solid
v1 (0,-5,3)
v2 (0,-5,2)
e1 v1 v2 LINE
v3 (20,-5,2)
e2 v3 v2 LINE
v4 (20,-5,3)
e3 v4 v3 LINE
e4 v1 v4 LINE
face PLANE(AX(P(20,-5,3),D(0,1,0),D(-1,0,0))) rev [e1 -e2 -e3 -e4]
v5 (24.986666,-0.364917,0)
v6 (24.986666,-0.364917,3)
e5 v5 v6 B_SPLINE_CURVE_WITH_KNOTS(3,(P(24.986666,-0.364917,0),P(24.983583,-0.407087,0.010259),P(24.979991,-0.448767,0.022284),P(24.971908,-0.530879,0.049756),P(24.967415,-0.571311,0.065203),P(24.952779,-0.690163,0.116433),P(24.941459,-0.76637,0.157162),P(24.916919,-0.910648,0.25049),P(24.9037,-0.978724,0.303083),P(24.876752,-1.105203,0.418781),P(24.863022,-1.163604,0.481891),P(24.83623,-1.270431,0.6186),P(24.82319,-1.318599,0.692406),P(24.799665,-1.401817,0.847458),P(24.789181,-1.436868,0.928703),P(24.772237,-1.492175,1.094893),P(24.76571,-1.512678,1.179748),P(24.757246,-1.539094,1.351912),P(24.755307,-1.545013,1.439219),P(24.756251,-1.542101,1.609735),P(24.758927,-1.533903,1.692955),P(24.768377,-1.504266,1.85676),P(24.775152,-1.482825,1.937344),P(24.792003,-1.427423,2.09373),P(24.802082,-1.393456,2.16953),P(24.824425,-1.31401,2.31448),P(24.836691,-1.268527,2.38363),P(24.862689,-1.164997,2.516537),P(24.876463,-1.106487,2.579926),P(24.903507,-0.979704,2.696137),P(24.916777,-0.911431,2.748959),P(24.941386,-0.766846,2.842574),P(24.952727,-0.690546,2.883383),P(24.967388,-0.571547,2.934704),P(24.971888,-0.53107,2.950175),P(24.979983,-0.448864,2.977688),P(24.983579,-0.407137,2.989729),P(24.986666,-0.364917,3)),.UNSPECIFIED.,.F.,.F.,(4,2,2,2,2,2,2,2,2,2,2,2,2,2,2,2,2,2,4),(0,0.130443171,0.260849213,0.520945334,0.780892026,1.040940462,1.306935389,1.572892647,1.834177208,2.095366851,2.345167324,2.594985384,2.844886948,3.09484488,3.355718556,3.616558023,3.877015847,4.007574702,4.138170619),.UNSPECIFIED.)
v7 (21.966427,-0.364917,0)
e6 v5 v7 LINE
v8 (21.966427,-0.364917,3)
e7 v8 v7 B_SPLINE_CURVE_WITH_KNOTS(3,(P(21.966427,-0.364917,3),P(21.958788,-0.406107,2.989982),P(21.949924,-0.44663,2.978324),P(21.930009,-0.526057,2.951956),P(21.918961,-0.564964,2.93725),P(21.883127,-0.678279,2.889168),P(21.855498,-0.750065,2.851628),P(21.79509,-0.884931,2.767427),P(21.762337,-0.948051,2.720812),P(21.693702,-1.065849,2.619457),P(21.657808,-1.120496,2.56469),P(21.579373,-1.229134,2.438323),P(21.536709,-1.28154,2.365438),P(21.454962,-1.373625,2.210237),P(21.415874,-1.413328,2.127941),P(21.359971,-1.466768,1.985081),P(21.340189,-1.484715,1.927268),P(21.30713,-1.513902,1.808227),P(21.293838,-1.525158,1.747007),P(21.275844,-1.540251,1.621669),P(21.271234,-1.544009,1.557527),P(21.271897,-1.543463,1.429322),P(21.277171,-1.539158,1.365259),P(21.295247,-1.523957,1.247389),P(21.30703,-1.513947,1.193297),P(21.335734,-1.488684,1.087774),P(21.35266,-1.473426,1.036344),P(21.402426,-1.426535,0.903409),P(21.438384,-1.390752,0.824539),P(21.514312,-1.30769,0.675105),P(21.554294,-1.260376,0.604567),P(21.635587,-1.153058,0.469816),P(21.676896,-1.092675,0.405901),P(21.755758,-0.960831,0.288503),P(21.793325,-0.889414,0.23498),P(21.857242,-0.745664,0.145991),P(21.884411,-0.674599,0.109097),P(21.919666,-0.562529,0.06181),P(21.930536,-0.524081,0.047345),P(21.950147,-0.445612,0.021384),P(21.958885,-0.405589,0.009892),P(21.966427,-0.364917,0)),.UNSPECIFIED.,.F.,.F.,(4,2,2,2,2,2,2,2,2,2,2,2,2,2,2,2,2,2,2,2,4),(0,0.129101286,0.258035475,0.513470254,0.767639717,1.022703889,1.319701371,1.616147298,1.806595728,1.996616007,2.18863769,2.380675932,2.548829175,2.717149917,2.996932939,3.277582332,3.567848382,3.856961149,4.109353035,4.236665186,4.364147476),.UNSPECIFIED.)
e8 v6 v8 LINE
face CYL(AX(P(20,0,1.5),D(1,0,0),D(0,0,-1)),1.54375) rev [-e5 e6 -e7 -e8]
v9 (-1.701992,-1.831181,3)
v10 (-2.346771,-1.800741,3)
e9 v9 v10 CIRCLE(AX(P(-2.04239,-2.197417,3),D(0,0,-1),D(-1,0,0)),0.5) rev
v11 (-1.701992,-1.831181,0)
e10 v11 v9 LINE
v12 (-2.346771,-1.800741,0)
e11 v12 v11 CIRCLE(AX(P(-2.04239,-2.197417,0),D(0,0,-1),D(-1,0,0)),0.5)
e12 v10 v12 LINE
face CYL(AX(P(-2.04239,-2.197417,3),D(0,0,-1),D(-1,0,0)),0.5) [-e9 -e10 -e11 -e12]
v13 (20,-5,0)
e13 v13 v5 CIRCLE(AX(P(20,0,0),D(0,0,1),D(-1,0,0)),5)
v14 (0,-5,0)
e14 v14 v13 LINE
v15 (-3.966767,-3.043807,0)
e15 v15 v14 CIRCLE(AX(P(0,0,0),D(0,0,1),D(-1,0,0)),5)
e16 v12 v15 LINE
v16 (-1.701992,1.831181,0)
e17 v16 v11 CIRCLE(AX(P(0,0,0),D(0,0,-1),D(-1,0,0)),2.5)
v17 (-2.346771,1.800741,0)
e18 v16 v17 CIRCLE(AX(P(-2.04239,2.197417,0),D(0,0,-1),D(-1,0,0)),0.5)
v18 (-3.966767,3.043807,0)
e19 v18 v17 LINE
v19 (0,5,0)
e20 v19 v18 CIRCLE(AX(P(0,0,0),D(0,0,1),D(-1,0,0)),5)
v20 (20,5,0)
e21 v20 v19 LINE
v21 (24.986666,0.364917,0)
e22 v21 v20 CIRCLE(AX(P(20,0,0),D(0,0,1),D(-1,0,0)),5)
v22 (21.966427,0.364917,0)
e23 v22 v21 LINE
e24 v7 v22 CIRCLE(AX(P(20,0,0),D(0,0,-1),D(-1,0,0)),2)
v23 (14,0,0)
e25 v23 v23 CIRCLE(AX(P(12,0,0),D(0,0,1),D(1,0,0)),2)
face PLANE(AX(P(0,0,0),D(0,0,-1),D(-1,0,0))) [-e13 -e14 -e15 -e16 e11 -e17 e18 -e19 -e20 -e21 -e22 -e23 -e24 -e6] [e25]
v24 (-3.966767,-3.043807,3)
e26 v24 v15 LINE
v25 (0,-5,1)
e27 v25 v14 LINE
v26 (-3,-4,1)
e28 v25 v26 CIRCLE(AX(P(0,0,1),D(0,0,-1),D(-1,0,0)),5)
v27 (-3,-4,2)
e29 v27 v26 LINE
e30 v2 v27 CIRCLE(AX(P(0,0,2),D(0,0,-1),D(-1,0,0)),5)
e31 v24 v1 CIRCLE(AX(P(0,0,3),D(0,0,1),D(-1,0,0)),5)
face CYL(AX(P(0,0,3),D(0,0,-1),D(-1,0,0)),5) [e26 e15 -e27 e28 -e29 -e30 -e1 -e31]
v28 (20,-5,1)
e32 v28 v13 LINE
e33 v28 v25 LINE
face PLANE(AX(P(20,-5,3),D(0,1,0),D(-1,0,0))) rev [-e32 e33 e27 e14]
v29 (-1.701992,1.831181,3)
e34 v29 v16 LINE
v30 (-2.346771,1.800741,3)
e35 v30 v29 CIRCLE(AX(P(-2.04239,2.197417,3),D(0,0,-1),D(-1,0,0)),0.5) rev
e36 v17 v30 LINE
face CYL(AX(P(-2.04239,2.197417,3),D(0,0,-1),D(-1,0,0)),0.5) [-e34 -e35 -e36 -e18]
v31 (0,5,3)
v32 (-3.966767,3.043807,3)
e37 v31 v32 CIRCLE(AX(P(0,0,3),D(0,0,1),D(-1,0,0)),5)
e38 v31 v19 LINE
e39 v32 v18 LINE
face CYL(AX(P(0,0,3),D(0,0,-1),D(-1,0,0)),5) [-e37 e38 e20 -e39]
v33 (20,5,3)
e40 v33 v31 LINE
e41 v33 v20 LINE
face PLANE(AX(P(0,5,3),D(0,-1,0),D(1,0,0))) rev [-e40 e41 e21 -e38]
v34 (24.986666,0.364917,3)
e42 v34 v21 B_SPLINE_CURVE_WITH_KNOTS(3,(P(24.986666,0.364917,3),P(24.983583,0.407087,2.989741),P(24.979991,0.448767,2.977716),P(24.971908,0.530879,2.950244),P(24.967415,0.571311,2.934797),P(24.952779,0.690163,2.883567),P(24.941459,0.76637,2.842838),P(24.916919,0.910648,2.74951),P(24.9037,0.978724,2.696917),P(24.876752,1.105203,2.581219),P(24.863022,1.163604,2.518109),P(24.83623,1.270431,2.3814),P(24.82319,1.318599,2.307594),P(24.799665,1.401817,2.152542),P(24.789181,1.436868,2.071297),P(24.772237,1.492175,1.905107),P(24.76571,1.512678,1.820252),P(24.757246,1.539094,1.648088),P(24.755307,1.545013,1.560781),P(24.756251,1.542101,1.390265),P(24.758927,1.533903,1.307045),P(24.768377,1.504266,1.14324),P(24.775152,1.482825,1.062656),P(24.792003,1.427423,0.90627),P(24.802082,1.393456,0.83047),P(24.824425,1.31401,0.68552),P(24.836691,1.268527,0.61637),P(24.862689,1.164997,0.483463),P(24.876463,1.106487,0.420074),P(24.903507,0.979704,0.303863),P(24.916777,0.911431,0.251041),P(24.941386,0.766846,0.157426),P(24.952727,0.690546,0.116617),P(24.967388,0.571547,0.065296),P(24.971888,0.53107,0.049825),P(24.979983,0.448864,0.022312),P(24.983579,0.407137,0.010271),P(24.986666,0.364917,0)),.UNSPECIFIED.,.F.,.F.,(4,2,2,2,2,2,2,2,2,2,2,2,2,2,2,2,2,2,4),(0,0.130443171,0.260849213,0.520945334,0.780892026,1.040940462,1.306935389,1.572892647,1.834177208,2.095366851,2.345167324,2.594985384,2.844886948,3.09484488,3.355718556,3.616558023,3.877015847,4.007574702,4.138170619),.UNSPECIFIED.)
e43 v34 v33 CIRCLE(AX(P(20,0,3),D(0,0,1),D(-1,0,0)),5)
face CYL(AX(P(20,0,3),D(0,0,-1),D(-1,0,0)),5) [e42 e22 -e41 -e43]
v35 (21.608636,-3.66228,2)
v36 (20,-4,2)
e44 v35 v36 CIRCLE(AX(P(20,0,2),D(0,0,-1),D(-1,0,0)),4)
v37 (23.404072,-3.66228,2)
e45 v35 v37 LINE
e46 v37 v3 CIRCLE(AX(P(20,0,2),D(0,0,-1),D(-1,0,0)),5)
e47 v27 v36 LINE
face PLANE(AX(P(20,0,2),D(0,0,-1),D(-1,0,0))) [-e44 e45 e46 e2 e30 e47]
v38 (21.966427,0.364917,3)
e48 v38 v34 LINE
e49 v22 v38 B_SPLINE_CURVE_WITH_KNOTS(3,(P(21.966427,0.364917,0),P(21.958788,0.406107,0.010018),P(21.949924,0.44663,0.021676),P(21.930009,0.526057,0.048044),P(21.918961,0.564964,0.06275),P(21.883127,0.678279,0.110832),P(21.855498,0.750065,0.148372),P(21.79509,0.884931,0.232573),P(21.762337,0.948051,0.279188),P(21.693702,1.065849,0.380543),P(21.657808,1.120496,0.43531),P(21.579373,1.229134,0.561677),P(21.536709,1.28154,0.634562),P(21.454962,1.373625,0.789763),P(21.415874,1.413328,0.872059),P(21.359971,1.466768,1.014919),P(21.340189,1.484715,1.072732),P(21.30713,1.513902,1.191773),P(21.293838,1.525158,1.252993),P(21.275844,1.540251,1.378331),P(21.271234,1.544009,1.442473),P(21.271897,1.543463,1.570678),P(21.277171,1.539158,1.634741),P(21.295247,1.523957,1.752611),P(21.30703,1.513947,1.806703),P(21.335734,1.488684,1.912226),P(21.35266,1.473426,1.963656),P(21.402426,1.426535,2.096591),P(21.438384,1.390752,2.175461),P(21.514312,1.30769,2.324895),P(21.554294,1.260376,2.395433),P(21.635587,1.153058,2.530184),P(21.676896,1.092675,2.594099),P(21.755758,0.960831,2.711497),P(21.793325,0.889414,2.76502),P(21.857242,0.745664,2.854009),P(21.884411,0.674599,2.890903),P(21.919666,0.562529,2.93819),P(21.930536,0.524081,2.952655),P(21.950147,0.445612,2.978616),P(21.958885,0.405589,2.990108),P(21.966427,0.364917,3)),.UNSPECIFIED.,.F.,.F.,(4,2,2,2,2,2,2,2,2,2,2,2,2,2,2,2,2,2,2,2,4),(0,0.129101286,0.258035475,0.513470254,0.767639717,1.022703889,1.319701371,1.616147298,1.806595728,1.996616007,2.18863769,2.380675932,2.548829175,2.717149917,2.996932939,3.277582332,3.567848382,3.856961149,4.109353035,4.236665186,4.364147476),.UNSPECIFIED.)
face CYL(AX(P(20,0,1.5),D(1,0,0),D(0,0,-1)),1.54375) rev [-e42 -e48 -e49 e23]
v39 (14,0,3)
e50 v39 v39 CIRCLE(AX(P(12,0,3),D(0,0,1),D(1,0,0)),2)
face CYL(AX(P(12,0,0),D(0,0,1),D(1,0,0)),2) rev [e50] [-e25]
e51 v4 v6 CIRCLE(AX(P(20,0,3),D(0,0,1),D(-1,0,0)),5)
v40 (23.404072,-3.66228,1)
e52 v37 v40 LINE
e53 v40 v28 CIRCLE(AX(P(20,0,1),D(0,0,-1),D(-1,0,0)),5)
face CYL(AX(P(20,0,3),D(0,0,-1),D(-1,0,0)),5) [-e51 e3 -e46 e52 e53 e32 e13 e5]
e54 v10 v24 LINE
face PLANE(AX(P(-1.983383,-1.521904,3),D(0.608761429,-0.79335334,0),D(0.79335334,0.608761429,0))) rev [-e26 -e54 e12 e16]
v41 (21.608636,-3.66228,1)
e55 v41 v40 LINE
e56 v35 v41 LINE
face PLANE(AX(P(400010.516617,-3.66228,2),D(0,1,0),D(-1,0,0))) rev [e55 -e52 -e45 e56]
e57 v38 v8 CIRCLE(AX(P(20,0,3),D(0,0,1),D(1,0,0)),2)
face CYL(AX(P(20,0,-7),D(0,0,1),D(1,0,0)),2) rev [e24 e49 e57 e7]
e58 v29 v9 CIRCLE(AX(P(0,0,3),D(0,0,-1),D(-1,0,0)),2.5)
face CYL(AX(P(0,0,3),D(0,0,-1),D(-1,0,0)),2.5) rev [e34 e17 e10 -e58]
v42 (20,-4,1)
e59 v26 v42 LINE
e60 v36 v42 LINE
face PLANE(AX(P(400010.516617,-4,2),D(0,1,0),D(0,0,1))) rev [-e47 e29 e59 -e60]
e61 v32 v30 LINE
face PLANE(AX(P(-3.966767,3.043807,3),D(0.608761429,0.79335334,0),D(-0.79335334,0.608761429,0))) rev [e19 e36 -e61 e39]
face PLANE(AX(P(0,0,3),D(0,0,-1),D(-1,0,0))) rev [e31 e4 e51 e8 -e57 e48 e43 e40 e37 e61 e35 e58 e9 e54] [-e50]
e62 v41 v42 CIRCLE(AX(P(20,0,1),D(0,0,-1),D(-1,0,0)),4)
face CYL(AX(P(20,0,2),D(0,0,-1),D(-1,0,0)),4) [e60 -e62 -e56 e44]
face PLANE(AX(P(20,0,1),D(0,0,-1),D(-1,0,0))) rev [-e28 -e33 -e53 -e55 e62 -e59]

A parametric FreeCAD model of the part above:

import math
import FreeCAD as App
import Part
import Sketcher

V = App.Vector
Q = App.Units.Quantity


def edges_at(feature, points):
    """Names of the edges that pass closest to the given points."""
    edges = feature.Shape.Edges
    near = lambda p: min(range(len(edges)), key=lambda i: edges[i].distToShape(Part.Vertex(*p))[0])
    return sorted({f"Edge{near(p) + 1}" for p in points})

doc = App.newDocument("Part")
body = doc.addObject("PartDesign::Body", "Body")

# Sketch on XY plane
sketch1 = doc.addObject("Sketcher::SketchObject", "Sketch")
body.addObject(sketch1)
sketch1.AttachmentSupport = (doc.XY_Plane, [""])
sketch1.MapMode = "FlatFace"
sketch1.addGeometry(Part.LineSegment(V(-4, 3, 0), V(-2, 1.5, 0)), False)
sketch1.addGeometry(Part.ArcOfCircle(Part.Circle(V(0, 0, 0), V(0, 0, 1), 2.5), math.radians(-142), math.radians(142)), False)
sketch1.addGeometry(Part.LineSegment(V(-2, -1.5, 0), V(-4, -3, 0)), False)
sketch1.addGeometry(Part.ArcOfCircle(Part.Circle(V(0, 0, 0), V(0, 0, 1), 5), math.radians(-143), math.radians(-90)), False)
sketch1.addGeometry(Part.LineSegment(V(0, -5, 0), V(20, -5, 0)), False)
sketch1.addGeometry(Part.ArcOfCircle(Part.Circle(V(20, 0, 0), V(0, 0, 1), 5), math.radians(-90), math.radians(90)), False)
sketch1.addGeometry(Part.LineSegment(V(20, 5, 0), V(0, 5, 0)), False)
sketch1.addGeometry(Part.ArcOfCircle(Part.Circle(V(0, 0, 0), V(0, 0, 1), 5), math.radians(90), math.radians(143)), False)
sketch1.addConstraint(Sketcher.Constraint("Coincident", 0, 2, 1, 2))
sketch1.addConstraint(Sketcher.Constraint("Coincident", 1, 1, 2, 1))
sketch1.addConstraint(Sketcher.Constraint("Coincident", 2, 2, 3, 1))
sketch1.addConstraint(Sketcher.Constraint("Tangent", 3, 2, 4, 1))
sketch1.addConstraint(Sketcher.Constraint("Tangent", 4, 2, 5, 1))
sketch1.addConstraint(Sketcher.Constraint("Tangent", 5, 2, 6, 1))
sketch1.addConstraint(Sketcher.Constraint("Tangent", 6, 2, 7, 1))
sketch1.addConstraint(Sketcher.Constraint("Coincident", 7, 2, 0, 1))
sketch1.addConstraint(Sketcher.Constraint("Horizontal", 4))
sketch1.addConstraint(Sketcher.Constraint("Horizontal", 6))
sketch1.addConstraint(Sketcher.Constraint("Coincident", 1, 3, -1, 1))
sketch1.addConstraint(Sketcher.Constraint("Coincident", 3, 3, -1, 1))
sketch1.addConstraint(Sketcher.Constraint("Coincident", 7, 3, -1, 1))
sketch1.addConstraint(Sketcher.Constraint("Equal", 3, 5))
sketch1.addConstraint(Sketcher.Constraint("Vertical", 0, 2, 1, 1))
sketch1.addConstraint(Sketcher.Constraint("Vertical", 2, 2, 7, 2))
sketch1.addConstraint(Sketcher.Constraint("Radius", 3, Q("5 mm")))
sketch1.addConstraint(Sketcher.Constraint("Radius", 1, Q("2.5 mm")))
sketch1.addConstraint(Sketcher.Constraint("DistanceX", 4, 1, 4, 2, Q("20 mm")))
sketch1.addConstraint(Sketcher.Constraint("Angle", 0, Q("-37.5 deg")))
sketch1.addConstraint(Sketcher.Constraint("DistanceY", 2, 2, 0, 2, Q("4.565711 mm")))
pad1 = doc.addObject("PartDesign::Pad", "Pad")
body.addObject(pad1)
pad1.Profile = sketch1
pad1.Length = 3
doc.recompute()

fillet = doc.addObject("PartDesign::Fillet", "Fillet")
body.addObject(fillet)
fillet.Base = (pad1, edges_at(pad1, [(-1.983, -1.522, 1.5), (-1.983, 1.522, 1.5)]))
fillet.Radius = 0.5

# Sketch on XY plane
sketch2 = doc.addObject("Sketcher::SketchObject", "Sketch001")
body.addObject(sketch2)
sketch2.AttachmentSupport = (doc.XY_Plane, [""])
sketch2.MapMode = "FlatFace"
sketch2.AttachmentOffset = App.Placement(V(0, 0, 3), App.Rotation())
sketch2.addGeometry(Part.Circle(V(20, 0, 0), V(0, 0, 1), 2), False)
sketch2.addConstraint(Sketcher.Constraint("PointOnObject", 0, 3, -1))
sketch2.addConstraint(Sketcher.Constraint("Diameter", 0, Q("4 mm")))
sketch2.addConstraint(Sketcher.Constraint("DistanceX", -1, 1, 0, 3, Q("20 mm")))
pocket1 = doc.addObject("PartDesign::Pocket", "Pocket")
body.addObject(pocket1)
pocket1.Profile = sketch2
pocket1.Length = 10

# Sketch on XY plane
sketch3 = doc.addObject("Sketcher::SketchObject", "Sketch002")
body.addObject(sketch3)
sketch3.AttachmentSupport = (doc.XY_Plane, [""])
sketch3.MapMode = "FlatFace"
sketch3.AttachmentOffset = App.Placement(V(0, 0, 3), App.Rotation())
sketch3.addGeometry(Part.Circle(V(12, 0, 0), V(0, 0, 1), 2), False)
sketch3.addConstraint(Sketcher.Constraint("PointOnObject", 0, 3, -1))
sketch3.addConstraint(Sketcher.Constraint("Diameter", 0, Q("4 mm")))
sketch3.addConstraint(Sketcher.Constraint("DistanceX", -1, 1, 0, 3, Q("12 mm")))
pocket2 = doc.addObject("PartDesign::Pocket", "Pocket001")
body.addObject(pocket2)
pocket2.Profile = sketch3
pocket2.Length = 3

# Sketch on YZ plane
sketch4 = doc.addObject("Sketcher::SketchObject", "Sketch003")
body.addObject(sketch4)
sketch4.AttachmentSupport = (doc.YZ_Plane, [""])
sketch4.MapMode = "FlatFace"
sketch4.AttachmentOffset = App.Placement(V(0, 0, 50), App.Rotation())
sketch4.addGeometry(Part.Circle(V(0, 1.5, 0), V(0, 0, 1), 1.5), False)
sketch4.addConstraint(Sketcher.Constraint("PointOnObject", 0, 3, -2))
sketch4.addConstraint(Sketcher.Constraint("Diameter", 0, Q("3.0875 mm")))
sketch4.addConstraint(Sketcher.Constraint("DistanceY", -1, 1, 0, 3, Q("1.5 mm")))
pocket3 = doc.addObject("PartDesign::Pocket", "Pocket002")
body.addObject(pocket3)
pocket3.Profile = sketch4
pocket3.Length = 30

# Sketch on XY plane
sketch5 = doc.addObject("Sketcher::SketchObject", "Sketch004")
body.addObject(sketch5)
sketch5.AttachmentSupport = (doc.XY_Plane, [""])
sketch5.MapMode = "FlatFace"
sketch5.AttachmentOffset = App.Placement(V(0, 0, 1.5), App.Rotation())
sketch5.addGeometry(Part.LineSegment(V(21.6, -3.7, 0), V(23.4, -3.7, 0)), False)
sketch5.addGeometry(Part.ArcOfCircle(Part.Circle(V(20, 0, 0), V(0, 0, 1), 5), math.radians(-90), math.radians(-47)), False)
sketch5.addGeometry(Part.LineSegment(V(20, -5, 0), V(-3, -5, 0)), False)
sketch5.addGeometry(Part.LineSegment(V(-3, -5, 0), V(-3, -4, 0)), False)
sketch5.addGeometry(Part.LineSegment(V(-3, -4, 0), V(20, -4, 0)), False)
sketch5.addGeometry(Part.ArcOfCircle(Part.Circle(V(20, 0, 0), V(0, 0, 1), 4), math.radians(-90), math.radians(-66)), False)
sketch5.addConstraint(Sketcher.Constraint("Coincident", 0, 2, 1, 2))
sketch5.addConstraint(Sketcher.Constraint("Tangent", 1, 1, 2, 1))
sketch5.addConstraint(Sketcher.Constraint("Coincident", 2, 2, 3, 1))
sketch5.addConstraint(Sketcher.Constraint("Coincident", 3, 2, 4, 1))
sketch5.addConstraint(Sketcher.Constraint("Tangent", 4, 2, 5, 1))
sketch5.addConstraint(Sketcher.Constraint("Coincident", 5, 2, 0, 1))
sketch5.addConstraint(Sketcher.Constraint("Horizontal", 0))
sketch5.addConstraint(Sketcher.Constraint("Horizontal", 2))
sketch5.addConstraint(Sketcher.Constraint("Vertical", 3))
sketch5.addConstraint(Sketcher.Constraint("Horizontal", 4))
sketch5.addConstraint(Sketcher.Constraint("Coincident", 5, 3, 1, 3))
sketch5.addConstraint(Sketcher.Constraint("PointOnObject", 1, 3, -1))
sketch5.addConstraint(Sketcher.Constraint("Radius", 1, Q("5 mm")))
sketch5.addConstraint(Sketcher.Constraint("Radius", 5, Q("4 mm")))
sketch5.addConstraint(Sketcher.Constraint("DistanceX", 2, 2, 2, 1, Q("23 mm")))
sketch5.addConstraint(Sketcher.Constraint("DistanceX", -1, 1, 1, 3, Q("20 mm")))
sketch5.addConstraint(Sketcher.Constraint("DistanceX", 0, 1, 0, 2, Q("1.795437 mm")))
pocket4 = doc.addObject("PartDesign::Pocket", "Pocket003")
body.addObject(pocket4)
pocket4.Profile = sketch5
pocket4.Length = 1
pocket4.Midplane = True

doc.recompute()
